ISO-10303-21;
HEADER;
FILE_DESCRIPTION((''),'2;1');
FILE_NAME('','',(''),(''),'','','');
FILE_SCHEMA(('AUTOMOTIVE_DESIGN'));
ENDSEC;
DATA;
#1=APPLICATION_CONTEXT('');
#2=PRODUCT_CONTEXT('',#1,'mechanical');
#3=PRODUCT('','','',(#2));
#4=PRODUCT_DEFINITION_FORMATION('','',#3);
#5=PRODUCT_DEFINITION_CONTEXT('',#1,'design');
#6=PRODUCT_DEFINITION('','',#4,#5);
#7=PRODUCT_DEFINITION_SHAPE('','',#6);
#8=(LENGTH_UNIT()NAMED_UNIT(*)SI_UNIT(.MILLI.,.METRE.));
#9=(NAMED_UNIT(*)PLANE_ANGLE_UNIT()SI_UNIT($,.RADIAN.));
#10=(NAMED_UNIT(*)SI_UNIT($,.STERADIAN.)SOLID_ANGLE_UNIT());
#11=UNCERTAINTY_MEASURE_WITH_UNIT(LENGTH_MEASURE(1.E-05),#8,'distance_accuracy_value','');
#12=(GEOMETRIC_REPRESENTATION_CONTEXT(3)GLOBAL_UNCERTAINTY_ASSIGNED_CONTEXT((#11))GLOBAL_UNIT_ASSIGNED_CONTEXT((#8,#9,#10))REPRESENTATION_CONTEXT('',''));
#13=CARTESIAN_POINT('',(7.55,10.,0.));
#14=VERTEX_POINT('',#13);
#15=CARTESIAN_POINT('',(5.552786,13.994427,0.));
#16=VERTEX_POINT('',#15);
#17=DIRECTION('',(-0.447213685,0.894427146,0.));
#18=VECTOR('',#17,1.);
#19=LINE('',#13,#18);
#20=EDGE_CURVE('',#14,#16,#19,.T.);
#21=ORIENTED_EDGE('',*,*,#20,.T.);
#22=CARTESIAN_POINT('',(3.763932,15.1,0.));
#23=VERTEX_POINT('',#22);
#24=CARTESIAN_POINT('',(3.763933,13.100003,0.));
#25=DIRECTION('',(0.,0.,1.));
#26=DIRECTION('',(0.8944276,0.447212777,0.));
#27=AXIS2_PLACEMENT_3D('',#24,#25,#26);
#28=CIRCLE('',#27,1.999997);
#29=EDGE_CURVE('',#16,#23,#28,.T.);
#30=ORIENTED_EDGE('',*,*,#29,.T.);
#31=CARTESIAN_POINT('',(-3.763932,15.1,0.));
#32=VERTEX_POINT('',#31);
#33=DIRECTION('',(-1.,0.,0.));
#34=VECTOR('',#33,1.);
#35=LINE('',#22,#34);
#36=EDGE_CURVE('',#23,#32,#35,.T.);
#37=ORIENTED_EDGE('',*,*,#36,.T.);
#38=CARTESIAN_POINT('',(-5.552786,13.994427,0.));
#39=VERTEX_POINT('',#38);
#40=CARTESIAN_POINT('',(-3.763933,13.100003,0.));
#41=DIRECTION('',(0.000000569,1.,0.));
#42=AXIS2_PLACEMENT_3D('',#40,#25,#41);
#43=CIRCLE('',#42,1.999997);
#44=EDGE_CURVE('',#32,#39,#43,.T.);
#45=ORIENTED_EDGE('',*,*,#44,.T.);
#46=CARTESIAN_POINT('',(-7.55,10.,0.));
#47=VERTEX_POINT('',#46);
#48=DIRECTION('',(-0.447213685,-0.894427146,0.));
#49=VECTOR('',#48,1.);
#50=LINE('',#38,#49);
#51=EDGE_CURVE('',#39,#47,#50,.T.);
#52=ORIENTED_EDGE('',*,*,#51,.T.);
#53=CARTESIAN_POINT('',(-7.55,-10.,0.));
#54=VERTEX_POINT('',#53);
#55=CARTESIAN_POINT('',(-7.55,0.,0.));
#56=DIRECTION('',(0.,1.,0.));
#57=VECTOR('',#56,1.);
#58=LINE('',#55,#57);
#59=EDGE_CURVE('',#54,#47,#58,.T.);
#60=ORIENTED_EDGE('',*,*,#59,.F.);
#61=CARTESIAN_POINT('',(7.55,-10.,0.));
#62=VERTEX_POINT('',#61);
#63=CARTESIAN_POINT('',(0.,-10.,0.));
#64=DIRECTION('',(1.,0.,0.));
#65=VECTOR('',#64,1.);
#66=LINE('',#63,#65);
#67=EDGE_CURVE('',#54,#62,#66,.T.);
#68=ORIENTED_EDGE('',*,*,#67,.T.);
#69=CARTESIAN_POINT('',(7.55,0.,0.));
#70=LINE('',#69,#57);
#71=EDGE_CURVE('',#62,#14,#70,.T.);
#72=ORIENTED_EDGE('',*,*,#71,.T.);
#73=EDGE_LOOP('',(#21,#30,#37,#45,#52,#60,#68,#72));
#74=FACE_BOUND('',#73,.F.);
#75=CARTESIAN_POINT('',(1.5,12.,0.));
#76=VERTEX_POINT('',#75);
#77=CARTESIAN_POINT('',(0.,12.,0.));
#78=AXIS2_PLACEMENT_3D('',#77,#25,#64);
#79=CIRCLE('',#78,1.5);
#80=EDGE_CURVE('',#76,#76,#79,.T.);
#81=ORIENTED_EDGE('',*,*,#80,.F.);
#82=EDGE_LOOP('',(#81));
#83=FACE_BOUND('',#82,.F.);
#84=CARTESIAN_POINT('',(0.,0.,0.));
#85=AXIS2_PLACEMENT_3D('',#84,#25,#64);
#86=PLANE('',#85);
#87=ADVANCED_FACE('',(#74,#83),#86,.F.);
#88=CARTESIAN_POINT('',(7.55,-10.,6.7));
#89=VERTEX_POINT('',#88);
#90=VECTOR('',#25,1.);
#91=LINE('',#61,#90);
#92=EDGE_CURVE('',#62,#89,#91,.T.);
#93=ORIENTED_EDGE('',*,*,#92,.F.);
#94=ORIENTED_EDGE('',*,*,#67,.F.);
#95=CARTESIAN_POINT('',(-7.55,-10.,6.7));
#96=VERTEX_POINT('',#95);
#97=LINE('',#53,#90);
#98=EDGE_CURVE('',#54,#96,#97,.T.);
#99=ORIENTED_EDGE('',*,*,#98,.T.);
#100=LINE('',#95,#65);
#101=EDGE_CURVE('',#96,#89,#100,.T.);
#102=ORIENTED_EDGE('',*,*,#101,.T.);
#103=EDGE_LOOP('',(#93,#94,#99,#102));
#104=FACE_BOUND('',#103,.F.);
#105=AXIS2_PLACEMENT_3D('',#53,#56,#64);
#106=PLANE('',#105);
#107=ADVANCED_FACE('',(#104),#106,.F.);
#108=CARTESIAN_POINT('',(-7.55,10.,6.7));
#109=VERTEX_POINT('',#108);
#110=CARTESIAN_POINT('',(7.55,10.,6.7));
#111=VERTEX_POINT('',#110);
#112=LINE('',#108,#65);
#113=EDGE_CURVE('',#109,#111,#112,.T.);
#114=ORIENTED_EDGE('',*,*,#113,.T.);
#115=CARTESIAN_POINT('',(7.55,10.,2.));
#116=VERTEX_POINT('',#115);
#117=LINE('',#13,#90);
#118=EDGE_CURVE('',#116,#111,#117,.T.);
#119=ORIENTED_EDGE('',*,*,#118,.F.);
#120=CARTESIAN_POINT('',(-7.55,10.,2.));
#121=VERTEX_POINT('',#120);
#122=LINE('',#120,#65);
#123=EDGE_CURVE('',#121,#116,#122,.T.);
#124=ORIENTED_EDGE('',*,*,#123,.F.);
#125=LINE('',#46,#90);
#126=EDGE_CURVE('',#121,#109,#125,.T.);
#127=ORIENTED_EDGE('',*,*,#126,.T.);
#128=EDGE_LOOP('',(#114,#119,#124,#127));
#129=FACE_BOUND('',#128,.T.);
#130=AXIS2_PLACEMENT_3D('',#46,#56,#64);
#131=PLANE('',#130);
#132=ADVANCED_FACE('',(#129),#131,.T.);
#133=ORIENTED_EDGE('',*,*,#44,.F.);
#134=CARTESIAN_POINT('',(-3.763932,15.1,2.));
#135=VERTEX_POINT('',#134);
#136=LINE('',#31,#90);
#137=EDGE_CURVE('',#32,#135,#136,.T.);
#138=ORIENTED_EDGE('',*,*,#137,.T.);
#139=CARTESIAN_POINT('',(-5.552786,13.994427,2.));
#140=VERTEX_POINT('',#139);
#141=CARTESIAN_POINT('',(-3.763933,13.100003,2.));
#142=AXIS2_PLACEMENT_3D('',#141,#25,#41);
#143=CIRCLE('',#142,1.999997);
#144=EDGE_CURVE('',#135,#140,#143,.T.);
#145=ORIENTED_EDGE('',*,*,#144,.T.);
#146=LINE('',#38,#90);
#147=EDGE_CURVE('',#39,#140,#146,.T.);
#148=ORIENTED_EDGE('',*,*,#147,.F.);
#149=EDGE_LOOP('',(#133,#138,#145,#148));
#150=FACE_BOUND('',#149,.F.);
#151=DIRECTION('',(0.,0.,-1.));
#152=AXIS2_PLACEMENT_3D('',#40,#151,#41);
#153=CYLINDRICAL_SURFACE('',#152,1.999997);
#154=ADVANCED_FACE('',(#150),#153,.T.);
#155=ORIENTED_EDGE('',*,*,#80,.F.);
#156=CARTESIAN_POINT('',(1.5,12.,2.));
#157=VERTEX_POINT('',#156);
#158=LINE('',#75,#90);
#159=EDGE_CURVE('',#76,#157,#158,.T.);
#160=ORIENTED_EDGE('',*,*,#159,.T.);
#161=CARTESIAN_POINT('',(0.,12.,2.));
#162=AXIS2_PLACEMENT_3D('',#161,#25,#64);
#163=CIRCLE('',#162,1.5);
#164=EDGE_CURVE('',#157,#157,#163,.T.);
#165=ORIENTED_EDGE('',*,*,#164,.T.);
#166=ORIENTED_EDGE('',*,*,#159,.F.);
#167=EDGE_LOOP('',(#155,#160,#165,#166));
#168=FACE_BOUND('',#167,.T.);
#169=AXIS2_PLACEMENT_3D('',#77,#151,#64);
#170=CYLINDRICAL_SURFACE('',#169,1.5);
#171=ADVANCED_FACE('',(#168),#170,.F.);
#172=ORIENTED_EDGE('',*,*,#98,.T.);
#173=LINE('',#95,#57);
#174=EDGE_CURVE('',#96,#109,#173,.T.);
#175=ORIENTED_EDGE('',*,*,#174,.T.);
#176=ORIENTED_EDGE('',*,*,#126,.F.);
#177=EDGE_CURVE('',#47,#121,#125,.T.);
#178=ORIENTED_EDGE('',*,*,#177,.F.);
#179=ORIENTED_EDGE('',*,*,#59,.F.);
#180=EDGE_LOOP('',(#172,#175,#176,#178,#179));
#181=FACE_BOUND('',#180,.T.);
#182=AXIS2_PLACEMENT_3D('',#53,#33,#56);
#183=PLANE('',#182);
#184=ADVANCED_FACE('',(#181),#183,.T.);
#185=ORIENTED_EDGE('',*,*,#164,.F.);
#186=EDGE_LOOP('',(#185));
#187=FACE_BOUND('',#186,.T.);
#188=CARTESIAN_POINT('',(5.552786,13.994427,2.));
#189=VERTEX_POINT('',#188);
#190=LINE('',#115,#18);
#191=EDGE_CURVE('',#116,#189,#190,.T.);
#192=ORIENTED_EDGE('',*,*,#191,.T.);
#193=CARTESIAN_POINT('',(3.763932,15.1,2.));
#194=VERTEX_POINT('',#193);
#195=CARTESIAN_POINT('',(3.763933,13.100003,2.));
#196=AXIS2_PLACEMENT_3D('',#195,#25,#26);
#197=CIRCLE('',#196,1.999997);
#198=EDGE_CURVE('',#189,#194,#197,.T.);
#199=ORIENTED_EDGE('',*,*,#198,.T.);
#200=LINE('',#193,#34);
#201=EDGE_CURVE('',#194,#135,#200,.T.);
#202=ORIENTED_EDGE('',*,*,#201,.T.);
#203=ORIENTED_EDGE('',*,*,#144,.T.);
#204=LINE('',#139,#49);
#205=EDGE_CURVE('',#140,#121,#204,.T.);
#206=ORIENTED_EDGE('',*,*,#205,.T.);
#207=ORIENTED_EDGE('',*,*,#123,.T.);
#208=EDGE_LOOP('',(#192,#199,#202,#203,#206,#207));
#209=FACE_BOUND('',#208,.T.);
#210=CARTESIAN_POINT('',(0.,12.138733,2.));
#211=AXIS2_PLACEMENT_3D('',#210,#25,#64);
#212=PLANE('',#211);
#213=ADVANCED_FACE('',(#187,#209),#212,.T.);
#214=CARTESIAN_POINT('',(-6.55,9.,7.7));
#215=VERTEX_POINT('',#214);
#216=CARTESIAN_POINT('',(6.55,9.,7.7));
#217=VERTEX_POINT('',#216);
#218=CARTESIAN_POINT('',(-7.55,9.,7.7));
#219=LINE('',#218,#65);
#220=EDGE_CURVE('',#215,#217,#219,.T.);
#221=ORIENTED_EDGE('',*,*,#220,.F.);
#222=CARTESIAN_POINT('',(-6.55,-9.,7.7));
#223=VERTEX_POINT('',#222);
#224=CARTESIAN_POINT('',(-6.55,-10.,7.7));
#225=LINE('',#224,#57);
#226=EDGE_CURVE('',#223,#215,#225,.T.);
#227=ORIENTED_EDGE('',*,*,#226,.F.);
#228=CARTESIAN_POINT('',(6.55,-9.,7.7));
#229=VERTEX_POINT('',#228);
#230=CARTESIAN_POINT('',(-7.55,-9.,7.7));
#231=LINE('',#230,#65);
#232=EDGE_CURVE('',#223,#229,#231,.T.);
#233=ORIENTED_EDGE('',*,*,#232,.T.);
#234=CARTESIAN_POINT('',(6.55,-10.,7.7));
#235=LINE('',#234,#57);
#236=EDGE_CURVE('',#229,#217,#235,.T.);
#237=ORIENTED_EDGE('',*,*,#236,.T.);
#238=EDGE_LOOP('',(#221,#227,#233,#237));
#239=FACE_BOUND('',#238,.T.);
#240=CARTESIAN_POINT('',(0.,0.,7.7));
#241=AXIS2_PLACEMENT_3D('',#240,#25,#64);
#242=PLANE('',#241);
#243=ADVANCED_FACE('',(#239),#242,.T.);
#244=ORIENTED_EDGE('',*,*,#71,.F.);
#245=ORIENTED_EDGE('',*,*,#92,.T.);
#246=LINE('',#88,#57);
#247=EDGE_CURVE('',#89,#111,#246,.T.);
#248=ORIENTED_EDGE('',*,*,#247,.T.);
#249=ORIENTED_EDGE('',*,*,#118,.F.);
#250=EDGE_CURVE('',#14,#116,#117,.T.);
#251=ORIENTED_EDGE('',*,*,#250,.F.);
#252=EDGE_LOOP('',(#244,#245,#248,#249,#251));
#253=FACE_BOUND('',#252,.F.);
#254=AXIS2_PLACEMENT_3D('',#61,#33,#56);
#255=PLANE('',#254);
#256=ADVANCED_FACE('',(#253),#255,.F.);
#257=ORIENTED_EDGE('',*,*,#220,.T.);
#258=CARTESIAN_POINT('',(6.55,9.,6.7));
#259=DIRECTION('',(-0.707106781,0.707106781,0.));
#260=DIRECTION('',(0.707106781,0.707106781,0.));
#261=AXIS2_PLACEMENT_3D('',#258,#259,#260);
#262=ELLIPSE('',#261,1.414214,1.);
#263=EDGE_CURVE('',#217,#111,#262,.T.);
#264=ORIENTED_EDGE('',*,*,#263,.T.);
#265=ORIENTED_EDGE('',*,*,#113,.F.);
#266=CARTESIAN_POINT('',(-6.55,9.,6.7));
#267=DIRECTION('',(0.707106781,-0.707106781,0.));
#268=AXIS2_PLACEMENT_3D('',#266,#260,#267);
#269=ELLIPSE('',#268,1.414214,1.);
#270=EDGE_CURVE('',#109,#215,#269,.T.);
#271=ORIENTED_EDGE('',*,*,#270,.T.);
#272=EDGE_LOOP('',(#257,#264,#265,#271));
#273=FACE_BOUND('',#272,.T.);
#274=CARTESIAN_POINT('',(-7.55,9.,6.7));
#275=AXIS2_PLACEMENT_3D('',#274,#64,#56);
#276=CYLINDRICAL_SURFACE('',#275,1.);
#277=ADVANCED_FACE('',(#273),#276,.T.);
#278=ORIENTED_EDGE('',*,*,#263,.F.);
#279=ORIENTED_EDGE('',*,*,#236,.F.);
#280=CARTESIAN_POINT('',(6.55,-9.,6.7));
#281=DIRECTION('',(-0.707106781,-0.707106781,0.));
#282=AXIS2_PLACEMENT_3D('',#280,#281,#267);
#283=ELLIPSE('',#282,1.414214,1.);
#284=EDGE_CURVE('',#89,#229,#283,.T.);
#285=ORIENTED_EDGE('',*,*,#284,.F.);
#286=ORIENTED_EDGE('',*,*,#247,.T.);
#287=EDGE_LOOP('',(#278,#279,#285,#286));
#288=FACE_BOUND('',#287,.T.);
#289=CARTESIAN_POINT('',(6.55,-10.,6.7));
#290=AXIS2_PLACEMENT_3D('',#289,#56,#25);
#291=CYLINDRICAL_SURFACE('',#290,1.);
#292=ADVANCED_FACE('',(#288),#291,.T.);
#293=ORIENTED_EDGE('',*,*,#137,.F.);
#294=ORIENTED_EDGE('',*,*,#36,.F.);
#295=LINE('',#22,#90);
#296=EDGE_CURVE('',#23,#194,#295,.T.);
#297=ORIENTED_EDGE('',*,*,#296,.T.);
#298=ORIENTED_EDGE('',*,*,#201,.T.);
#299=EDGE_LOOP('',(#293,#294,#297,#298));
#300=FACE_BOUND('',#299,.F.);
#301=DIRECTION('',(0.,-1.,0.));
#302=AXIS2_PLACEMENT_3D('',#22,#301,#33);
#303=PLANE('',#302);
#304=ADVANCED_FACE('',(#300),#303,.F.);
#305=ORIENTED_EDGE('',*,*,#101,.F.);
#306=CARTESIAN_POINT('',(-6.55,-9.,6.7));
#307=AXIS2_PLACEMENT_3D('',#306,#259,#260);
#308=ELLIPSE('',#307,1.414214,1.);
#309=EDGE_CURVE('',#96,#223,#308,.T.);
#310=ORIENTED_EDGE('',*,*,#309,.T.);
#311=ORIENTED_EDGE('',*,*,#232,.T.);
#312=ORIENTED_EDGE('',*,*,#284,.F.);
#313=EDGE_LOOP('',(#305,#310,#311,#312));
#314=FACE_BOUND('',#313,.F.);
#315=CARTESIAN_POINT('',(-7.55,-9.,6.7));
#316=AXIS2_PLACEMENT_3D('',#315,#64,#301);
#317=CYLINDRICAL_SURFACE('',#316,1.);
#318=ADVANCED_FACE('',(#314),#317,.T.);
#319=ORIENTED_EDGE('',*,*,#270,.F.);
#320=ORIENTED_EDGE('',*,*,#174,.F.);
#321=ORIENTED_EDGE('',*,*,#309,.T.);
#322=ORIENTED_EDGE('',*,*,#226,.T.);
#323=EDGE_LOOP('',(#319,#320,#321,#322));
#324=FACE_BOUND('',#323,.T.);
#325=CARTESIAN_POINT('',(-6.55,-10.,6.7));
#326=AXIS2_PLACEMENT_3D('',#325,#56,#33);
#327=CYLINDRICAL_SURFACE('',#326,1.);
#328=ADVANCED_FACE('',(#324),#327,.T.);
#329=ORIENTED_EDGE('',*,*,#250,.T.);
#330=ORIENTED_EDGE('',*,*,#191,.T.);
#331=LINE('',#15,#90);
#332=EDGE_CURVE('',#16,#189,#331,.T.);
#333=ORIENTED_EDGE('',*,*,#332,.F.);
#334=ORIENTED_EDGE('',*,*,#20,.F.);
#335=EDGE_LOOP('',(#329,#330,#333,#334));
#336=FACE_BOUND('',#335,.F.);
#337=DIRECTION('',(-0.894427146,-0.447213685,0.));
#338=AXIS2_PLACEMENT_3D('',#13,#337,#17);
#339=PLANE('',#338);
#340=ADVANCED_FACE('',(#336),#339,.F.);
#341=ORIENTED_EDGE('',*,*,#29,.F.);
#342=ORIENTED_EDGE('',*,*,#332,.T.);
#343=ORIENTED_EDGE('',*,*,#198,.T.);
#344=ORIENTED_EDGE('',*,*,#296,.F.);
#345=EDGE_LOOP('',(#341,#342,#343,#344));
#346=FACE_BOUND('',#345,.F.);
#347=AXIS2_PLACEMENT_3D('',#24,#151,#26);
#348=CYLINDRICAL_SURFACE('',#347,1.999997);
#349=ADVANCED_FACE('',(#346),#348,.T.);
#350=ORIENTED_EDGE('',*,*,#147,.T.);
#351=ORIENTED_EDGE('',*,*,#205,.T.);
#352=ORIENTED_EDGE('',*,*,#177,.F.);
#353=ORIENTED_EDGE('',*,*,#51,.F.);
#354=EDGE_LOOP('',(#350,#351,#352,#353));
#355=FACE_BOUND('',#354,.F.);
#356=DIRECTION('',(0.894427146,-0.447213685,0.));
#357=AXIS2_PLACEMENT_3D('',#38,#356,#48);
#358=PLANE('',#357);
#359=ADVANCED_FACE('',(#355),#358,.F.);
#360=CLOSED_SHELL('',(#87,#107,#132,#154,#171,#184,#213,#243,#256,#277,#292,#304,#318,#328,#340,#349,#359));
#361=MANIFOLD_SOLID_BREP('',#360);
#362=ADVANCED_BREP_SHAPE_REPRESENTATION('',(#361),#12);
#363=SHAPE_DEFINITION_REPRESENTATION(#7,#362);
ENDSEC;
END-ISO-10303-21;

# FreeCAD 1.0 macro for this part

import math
import FreeCAD as App
import Part
import Sketcher

V = App.Vector


def edges_at(feature, points):
    """Names of the edges that pass closest to the given points."""
    edges = feature.Shape.Edges
    near = lambda p: min(range(len(edges)), key=lambda i: edges[i].distToShape(Part.Vertex(*p))[0])
    return sorted({f"Edge{near(p) + 1}" for p in points})


def add_polygon(sketch, points):
    """Adds a closed chain of lines whose ends are joined by coincident constraints."""
    first, n = sketch.GeometryCount, len(points)
    for a, b in zip(points, points[1:] + points[:1]):
        sketch.addGeometry(Part.LineSegment(App.Vector(*a, 0), App.Vector(*b, 0)), False)
    for i in range(n):
        sketch.addConstraint(Sketcher.Constraint("Coincident", first + i, 2, first + (i + 1) % n, 1))

doc = App.newDocument("Part")
params = doc.addObject("Spreadsheet::Sheet", "Params")
for row, (alias, value) in enumerate([
    ("sketch1_diameter", "3 mm"),
    ("sketch1_width", "15.1 mm"),
    ("pad1_length", "2 mm"),
    ("sketch2_height", "20 mm"),
    ("sketch2_width", "15.1 mm"),
    ("pad2_length", "7.7 mm"),
    ("fillet_radius", "1 mm"),
], start=1):
    params.set(f"A{row}", alias)
    params.set(f"B{row}", "=" + value)
    params.setAlias(f"B{row}", alias)

body = doc.addObject("PartDesign::Body", "Body")

sketch1 = body.newObject("Sketcher::SketchObject", "Sketch")
sketch1.AttachmentSupport = (doc.getObject("XY_Plane"), [""])
sketch1.MapMode = "FlatFace"
sketch1.addGeometry([
    Part.LineSegment(V(-7.5, 10, 0), V(7.5, 10, 0)),
    Part.LineSegment(V(7.5, 10, 0), V(5.6, 14, 0)),
    Part.ArcOfCircle(Part.Circle(V(3.8, 13.1, 0), V(0, 0, 1), 2), math.radians(27), math.radians(90)),
    Part.LineSegment(V(3.8, 15.1, 0), V(-3.8, 15.1, 0)),
    Part.ArcOfCircle(Part.Circle(V(-3.8, 13.1, 0), V(0, 0, 1), 2), math.radians(90), math.radians(153)),
    Part.LineSegment(V(-5.6, 14, 0), V(-7.5, 10, 0)),
    Part.Circle(V(0, 12, 0), V(0, 0, 1), 1.5),
], False)
sketch1.addConstraint([
    Sketcher.Constraint("Coincident", 0, 2, 1, 1),
    Sketcher.Constraint("Tangent", 1, 2, 2, 1),
    Sketcher.Constraint("Tangent", 2, 2, 3, 1),
    Sketcher.Constraint("Tangent", 3, 2, 4, 1),
    Sketcher.Constraint("Tangent", 4, 2, 5, 1),
    Sketcher.Constraint("Coincident", 5, 2, 0, 1),
    Sketcher.Constraint("Horizontal", 0),
    Sketcher.Constraint("Horizontal", 3),
    Sketcher.Constraint("Equal", 2, 4),
    Sketcher.Constraint("Symmetric", 1, 2, 4, 2, -2),
    Sketcher.Constraint("PointOnObject", 6, 3, -2),
    Sketcher.Constraint("Diameter", 6, 3.0),
    Sketcher.Constraint("DistanceX", 0, 1, 0, 2, 15.1),
    Sketcher.Constraint("DistanceY", -1, 1, 6, 3, 12.0),
    Sketcher.Constraint("DistanceY", -1, 1, 0, 2, 10.0),
    Sketcher.Constraint("DistanceY", -1, 1, 2, 2, 15.1),
    Sketcher.Constraint("Radius", 2, 1.999997),
    Sketcher.Constraint("DistanceX", 3, 2, 3, 1, 7.527864),
])
sketch1.setExpression("Constraints[11]", "Params.sketch1_diameter")
sketch1.setExpression("Constraints[12]", "Params.sketch1_width")
pad1 = body.newObject("PartDesign::Pad", "Pad")
pad1.Profile = sketch1
pad1.setExpression("Length", "Params.pad1_length")

sketch2 = body.newObject("Sketcher::SketchObject", "Sketch001")
sketch2.AttachmentSupport = (doc.getObject("XY_Plane"), [""])
sketch2.MapMode = "FlatFace"
add_polygon(sketch2, [(-8, 10), (-8, -10), (8, -10), (8, 10)])
sketch2.addConstraint([
    Sketcher.Constraint("Vertical", 0),
    Sketcher.Constraint("Horizontal", 1),
    Sketcher.Constraint("Vertical", 2),
    Sketcher.Constraint("Horizontal", 3),
    Sketcher.Constraint("Symmetric", 0, 2, 2, 2, -1, 1),
    Sketcher.Constraint("DistanceY", 0, 2, 0, 1, 20.0),
    Sketcher.Constraint("DistanceX", 1, 1, 1, 2, 15.1),
])
sketch2.setExpression("Constraints[9]", "Params.sketch2_height")
sketch2.setExpression("Constraints[10]", "Params.sketch2_width")
pad2 = body.newObject("PartDesign::Pad", "Pad001")
pad2.Profile = sketch2
pad2.setExpression("Length", "Params.pad2_length")
doc.recompute()

fillet = body.newObject("PartDesign::Fillet", "Fillet")
fillet.Base = (pad2, edges_at(pad2, [
    (0, -10, 7.7),
    (7.55, 0, 7.7),
    (0, 10, 7.7),
    (-7.55, 0, 7.7),
]))
fillet.setExpression("Radius", "Params.fillet_radius")

doc.recompute()
